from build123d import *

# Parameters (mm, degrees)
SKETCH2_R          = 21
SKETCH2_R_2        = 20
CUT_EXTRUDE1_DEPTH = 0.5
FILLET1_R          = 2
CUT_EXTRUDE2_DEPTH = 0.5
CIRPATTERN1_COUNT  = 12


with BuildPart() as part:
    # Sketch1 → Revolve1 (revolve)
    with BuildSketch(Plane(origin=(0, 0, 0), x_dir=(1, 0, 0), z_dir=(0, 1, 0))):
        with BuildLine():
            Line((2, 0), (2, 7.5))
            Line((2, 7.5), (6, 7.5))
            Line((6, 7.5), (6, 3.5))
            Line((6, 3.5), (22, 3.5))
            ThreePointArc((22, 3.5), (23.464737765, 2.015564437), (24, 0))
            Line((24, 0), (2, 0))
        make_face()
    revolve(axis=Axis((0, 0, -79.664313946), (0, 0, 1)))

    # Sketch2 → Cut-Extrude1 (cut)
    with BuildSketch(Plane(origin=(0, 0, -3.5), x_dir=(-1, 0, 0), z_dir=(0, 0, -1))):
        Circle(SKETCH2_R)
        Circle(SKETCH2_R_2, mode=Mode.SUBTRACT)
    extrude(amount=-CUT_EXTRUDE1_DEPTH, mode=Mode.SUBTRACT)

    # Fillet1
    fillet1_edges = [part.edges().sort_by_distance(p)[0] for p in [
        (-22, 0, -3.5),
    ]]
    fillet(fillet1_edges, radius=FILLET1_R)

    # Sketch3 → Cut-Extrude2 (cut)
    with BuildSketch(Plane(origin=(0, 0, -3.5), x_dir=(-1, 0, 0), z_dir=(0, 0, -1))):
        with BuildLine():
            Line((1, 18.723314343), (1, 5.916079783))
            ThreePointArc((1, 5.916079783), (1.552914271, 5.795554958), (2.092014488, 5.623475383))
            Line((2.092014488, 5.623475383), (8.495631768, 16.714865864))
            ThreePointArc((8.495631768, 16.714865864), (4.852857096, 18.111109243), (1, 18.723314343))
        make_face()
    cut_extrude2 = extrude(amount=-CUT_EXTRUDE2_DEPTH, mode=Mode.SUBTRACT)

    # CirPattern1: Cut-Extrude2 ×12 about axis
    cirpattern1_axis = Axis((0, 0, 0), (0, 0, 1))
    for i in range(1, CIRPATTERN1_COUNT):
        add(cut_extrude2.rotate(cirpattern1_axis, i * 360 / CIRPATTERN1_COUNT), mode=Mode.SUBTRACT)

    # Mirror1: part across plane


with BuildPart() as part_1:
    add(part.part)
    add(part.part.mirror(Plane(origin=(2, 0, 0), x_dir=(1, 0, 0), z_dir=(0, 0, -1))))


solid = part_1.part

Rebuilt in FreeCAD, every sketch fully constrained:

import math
import FreeCAD as App
import Part
import Sketcher
from FreeCAD import Vector
Q = App.Units.Quantity


def edges_at(feature, points):
    """Names of the edges that pass closest to the given points."""
    edges = feature.Shape.Edges
    near = lambda p: min(range(len(edges)), key=lambda i: edges[i].distToShape(Part.Vertex(*p))[0])
    return sorted({f"Edge{near(p) + 1}" for p in points})

doc = App.newDocument("Part")
body = doc.addObject("PartDesign::Body", "Body")

sketch1 = doc.addObject("Sketcher::SketchObject", "Sketch")
body.addObject(sketch1)
sketch1.AttachmentSupport = (doc.XZ_Plane, [""])
sketch1.MapMode = "FlatFace"
sketch1.addGeometry(Part.LineSegment(Vector(2, -7.5, 0), Vector(2, 0, 0)), False)
sketch1.addGeometry(Part.LineSegment(Vector(2, 0, 0), Vector(24, 0, 0)), False)
sketch1.addGeometry(Part.ArcOfCircle(Part.Circle(Vector(19.9, 0, 0), Vector(0, 0, 1), 4.1), math.radians(-59), math.radians(0)), False)
sketch1.addGeometry(Part.LineSegment(Vector(22, -3.5, 0), Vector(6, -3.5, 0)), False)
sketch1.addGeometry(Part.LineSegment(Vector(6, -3.5, 0), Vector(6, -7.5, 0)), False)
sketch1.addGeometry(Part.LineSegment(Vector(6, -7.5, 0), Vector(2, -7.5, 0)), False)
sketch1.addConstraint(Sketcher.Constraint("Coincident", 0, 2, 1, 1))
sketch1.addConstraint(Sketcher.Constraint("Coincident", 1, 2, 2, 2))
sketch1.addConstraint(Sketcher.Constraint("Coincident", 2, 1, 3, 1))
sketch1.addConstraint(Sketcher.Constraint("Coincident", 3, 2, 4, 1))
sketch1.addConstraint(Sketcher.Constraint("Coincident", 4, 2, 5, 1))
sketch1.addConstraint(Sketcher.Constraint("Coincident", 5, 2, 0, 1))
sketch1.addConstraint(Sketcher.Constraint("Vertical", 0))
sketch1.addConstraint(Sketcher.Constraint("Horizontal", 1))
sketch1.addConstraint(Sketcher.Constraint("Horizontal", 3))
sketch1.addConstraint(Sketcher.Constraint("Vertical", 4))
sketch1.addConstraint(Sketcher.Constraint("Horizontal", 5))
sketch1.addConstraint(Sketcher.Constraint("PointOnObject", 2, 3, -1))
sketch1.addConstraint(Sketcher.Constraint("PointOnObject", 0, 2, -1))
sketch1.addConstraint(Sketcher.Constraint("Equal", 5, 4))
sketch1.addConstraint(Sketcher.Constraint("DistanceX", 1, 1, 1, 2, 22.0))
sketch1.addConstraint(Sketcher.Constraint("DistanceX", 3, 2, 3, 1, 16.0))
sketch1.addConstraint(Sketcher.Constraint("DistanceX", 5, 2, 5, 1, 4.0))
sketch1.addConstraint(Sketcher.Constraint("DistanceY", 0, 1, 0, 2, 7.5))
sketch1.addConstraint(Sketcher.Constraint("DistanceX", -1, 1, 0, 2, 2.0))
revolution = doc.addObject("PartDesign::Revolution", "Revolution")
body.addObject(revolution)
revolution.Profile = sketch1
revolution.ReferenceAxis = (sketch1, ["V_Axis"])
revolution.Angle = 360

sketch2 = doc.addObject("Sketcher::SketchObject", "Sketch001")
body.addObject(sketch2)
sketch2.AttachmentSupport = (doc.XY_Plane, [""])
sketch2.MapMode = "FlatFace"
sketch2.AttachmentOffset = App.Placement(Vector(0, 0, -3.5), App.Rotation())
sketch2.addGeometry(Part.Circle(Vector(0, 0, 0), Vector(0, 0, 1), 21), False)
sketch2.addGeometry(Part.Circle(Vector(0, 0, 0), Vector(0, 0, 1), 20), False)
sketch2.addConstraint(Sketcher.Constraint("Coincident", 0, 3, -1, 1))
sketch2.addConstraint(Sketcher.Constraint("Coincident", 1, 3, -1, 1))
sketch2.addConstraint(Sketcher.Constraint("Diameter", 0, 42.0))
sketch2.addConstraint(Sketcher.Constraint("Diameter", 1, 40.0))
pocket1 = doc.addObject("PartDesign::Pocket", "Pocket")
body.addObject(pocket1)
pocket1.Profile = sketch2
pocket1.Length = 0.5
pocket1.Reversed = True
doc.recompute()

fillet = doc.addObject("PartDesign::Fillet", "Fillet")
body.addObject(fillet)
fillet.Base = (pocket1, edges_at(pocket1, [(-22, 0, -3.5)]))
fillet.Radius = 2

sketch3 = doc.addObject("Sketcher::SketchObject", "Sketch002")
body.addObject(sketch3)
sketch3.AttachmentSupport = (doc.XY_Plane, [""])
sketch3.MapMode = "FlatFace"
sketch3.AttachmentOffset = App.Placement(Vector(0, 0, -3.5), App.Rotation())
sketch3.addGeometry(Part.LineSegment(Vector(-1, 18.7, 0), Vector(-1, 5.9, 0)), False)
sketch3.addGeometry(Part.ArcOfCircle(Part.Circle(Vector(0, 0, 0), Vector(0, 0, 1), 6), math.radians(99.59), math.radians(110.41)), False)
sketch3.addGeometry(Part.LineSegment(Vector(-2.1, 5.6, 0), Vector(-8.5, 16.7, 0)), False)
sketch3.addGeometry(Part.ArcOfCircle(Part.Circle(Vector(0, 0, 0), Vector(0, 0, 1), 18.7), math.radians(93), math.radians(117)), False)
sketch3.addConstraint(Sketcher.Constraint("Coincident", 0, 2, 1, 1))
sketch3.addConstraint(Sketcher.Constraint("Coincident", 1, 2, 2, 1))
sketch3.addConstraint(Sketcher.Constraint("Coincident", 2, 2, 3, 2))
sketch3.addConstraint(Sketcher.Constraint("Coincident", 3, 1, 0, 1))
sketch3.addConstraint(Sketcher.Constraint("Vertical", 0))
sketch3.addConstraint(Sketcher.Constraint("Coincident", 1, 3, -1, 1))
sketch3.addConstraint(Sketcher.Constraint("Coincident", 3, 3, -1, 1))
sketch3.addConstraint(Sketcher.Constraint("Radius", 1, 6.0))
sketch3.addConstraint(Sketcher.Constraint("Angle", 2, Q("120 deg")))
sketch3.addConstraint(Sketcher.Constraint("Radius", 3, 18.75))
sketch3.addConstraint(Sketcher.Constraint("DistanceX", 0, 2, -1, 1, 1.0))
sketch3.addConstraint(Sketcher.Constraint("DistanceX", 2, 2, -1, 1, 8.495632))
pocket2 = doc.addObject("PartDesign::Pocket", "Pocket001")
body.addObject(pocket2)
pocket2.Profile = sketch3
pocket2.Length = 0.5
pocket2.Reversed = True
doc.recompute()

polarpattern = doc.addObject("PartDesign::PolarPattern", "PolarPattern")
body.addObject(polarpattern)
polarpattern.Originals = [pocket2]
polarpattern.Axis = (doc.Z_Axis, [""])
polarpattern.Angle = 360
polarpattern.Occurrences = 12
body.Tip = polarpattern
body2 = doc.addObject("PartDesign::Body", "Body001")
doc.recompute()

body2.BaseFeature = body
doc.recompute()

mirroring = doc.addObject("Part::Mirroring", "Mirroring")
mirroring.Source = body
mirroring.Base = Vector(2, 0, 0)
mirroring.Normal = Vector(0, 0, -1)
body3 = doc.addObject("PartDesign::Body", "Body002")
body3.BaseFeature = mirroring
boolean = doc.addObject("PartDesign::Boolean", "Boolean")
body2.addObject(boolean)
boolean.Type = "Fuse"
boolean.addObjects([body3])
doc.recompute()

doc.recompute()
